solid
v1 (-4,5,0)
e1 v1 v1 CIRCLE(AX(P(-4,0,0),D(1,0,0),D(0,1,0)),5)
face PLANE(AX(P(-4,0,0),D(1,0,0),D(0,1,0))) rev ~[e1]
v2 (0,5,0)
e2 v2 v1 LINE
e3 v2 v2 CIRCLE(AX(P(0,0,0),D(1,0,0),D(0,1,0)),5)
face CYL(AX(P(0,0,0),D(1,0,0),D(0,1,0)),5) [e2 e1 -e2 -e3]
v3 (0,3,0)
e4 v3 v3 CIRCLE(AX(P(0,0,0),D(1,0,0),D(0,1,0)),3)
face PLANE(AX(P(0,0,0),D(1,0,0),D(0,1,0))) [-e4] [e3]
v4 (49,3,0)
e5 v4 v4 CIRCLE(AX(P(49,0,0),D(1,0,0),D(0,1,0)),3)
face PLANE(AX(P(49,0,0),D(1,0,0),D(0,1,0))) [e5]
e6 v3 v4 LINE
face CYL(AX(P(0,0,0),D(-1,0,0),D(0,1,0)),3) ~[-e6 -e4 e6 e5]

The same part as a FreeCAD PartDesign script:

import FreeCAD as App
import Part
import Sketcher
from FreeCAD import Vector

doc = App.newDocument("Part")
body = doc.addObject("PartDesign::Body", "Body")

# Sketch on YZ plane
sketch1 = doc.addObject("Sketcher::SketchObject", "Sketch")
body.addObject(sketch1)
sketch1.AttachmentSupport = (doc.YZ_Plane, [""])
sketch1.MapMode = "FlatFace"
sketch1.addGeometry(Part.Circle(Vector(0, 0, 0), Vector(0, 0, 1), 3), False)
sketch1.addConstraint([
    Sketcher.Constraint("Coincident", 0, 3, -1, 1),
    Sketcher.Constraint("Diameter", 0, 6.0),
])
pad1 = doc.addObject("PartDesign::Pad", "Pad")
body.addObject(pad1)
pad1.Profile = sketch1
pad1.Length = 49

# Sketch on YZ plane
sketch2 = doc.addObject("Sketcher::SketchObject", "Sketch001")
body.addObject(sketch2)
sketch2.AttachmentSupport = (doc.YZ_Plane, [""])
sketch2.MapMode = "FlatFace"
sketch2.addGeometry(Part.Circle(Vector(0, 0, 0), Vector(0, 0, 1), 5), False)
sketch2.addConstraint([
    Sketcher.Constraint("Coincident", 0, 3, -1, 1),
    Sketcher.Constraint("Diameter", 0, 10.0),
])
pad2 = doc.addObject("PartDesign::Pad", "Pad001")
body.addObject(pad2)
pad2.Profile = sketch2
pad2.Length = 4
pad2.Reversed = True

doc.recompute()
